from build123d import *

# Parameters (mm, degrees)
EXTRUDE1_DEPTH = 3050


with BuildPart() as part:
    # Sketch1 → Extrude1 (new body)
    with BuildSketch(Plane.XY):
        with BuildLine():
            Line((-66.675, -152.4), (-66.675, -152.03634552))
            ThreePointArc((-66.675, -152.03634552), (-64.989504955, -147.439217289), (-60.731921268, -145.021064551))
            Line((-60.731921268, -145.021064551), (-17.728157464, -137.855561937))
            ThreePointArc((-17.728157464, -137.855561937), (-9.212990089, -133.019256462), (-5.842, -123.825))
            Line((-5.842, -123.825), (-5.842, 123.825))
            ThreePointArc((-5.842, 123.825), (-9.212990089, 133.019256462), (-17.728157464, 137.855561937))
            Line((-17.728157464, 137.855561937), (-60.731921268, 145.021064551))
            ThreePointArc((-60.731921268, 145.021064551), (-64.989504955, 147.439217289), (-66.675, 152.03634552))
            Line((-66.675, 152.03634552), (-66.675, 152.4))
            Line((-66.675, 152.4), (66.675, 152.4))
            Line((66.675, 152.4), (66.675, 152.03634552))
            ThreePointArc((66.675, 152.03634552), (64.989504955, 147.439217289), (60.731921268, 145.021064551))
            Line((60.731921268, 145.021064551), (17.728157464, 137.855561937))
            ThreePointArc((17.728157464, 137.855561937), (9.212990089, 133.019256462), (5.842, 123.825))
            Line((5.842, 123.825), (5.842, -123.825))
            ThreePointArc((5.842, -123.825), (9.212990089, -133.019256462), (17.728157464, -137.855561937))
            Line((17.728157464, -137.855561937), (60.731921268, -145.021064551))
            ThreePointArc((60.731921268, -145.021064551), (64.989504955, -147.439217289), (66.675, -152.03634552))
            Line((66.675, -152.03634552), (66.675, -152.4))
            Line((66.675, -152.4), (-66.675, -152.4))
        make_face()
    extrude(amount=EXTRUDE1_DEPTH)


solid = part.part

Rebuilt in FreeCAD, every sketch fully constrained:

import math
import FreeCAD as App
import Part
import Sketcher
Q = App.Units.Quantity

doc = App.newDocument("Part")
body = doc.addObject("PartDesign::Body", "Body")

sketch1 = body.newObject("Sketcher::SketchObject", "Sketch")
sketch1.AttachmentSupport = (doc.getObject("XY_Plane"), [""])
sketch1.MapMode = "FlatFace"
sketch1.addGeometry([
    Part.LineSegment(App.Vector(-66.67, -152.04, 0), App.Vector(-66.67, -152.4, 0)),
    Part.LineSegment(App.Vector(-66.67, -152.4, 0), App.Vector(66.67, -152.4, 0)),
    Part.LineSegment(App.Vector(66.67, -152.4, 0), App.Vector(66.67, -152.04, 0)),
    Part.ArcOfCircle(Part.Circle(App.Vector(59.56, -152.04, 0), App.Vector(0, 0, 1), 7.11), math.radians(0), math.radians(81)),
    Part.LineSegment(App.Vector(60.73, -145.02, 0), App.Vector(17.73, -137.86, 0)),
    Part.ArcOfCircle(Part.Circle(App.Vector(20.07, -123.83, 0), App.Vector(0, 0, 1), 14.22), math.radians(180), math.radians(261)),
    Part.LineSegment(App.Vector(5.84, -123.83, 0), App.Vector(5.84, 123.83, 0)),
    Part.ArcOfCircle(Part.Circle(App.Vector(20.07, 123.83, 0), App.Vector(0, 0, 1), 14.22), math.radians(99), math.radians(180)),
    Part.LineSegment(App.Vector(17.73, 137.86, 0), App.Vector(60.73, 145.02, 0)),
    Part.ArcOfCircle(Part.Circle(App.Vector(59.56, 152.04, 0), App.Vector(0, 0, 1), 7.11), math.radians(-81), math.radians(0)),
    Part.LineSegment(App.Vector(66.67, 152.04, 0), App.Vector(66.67, 152.4, 0)),
    Part.LineSegment(App.Vector(66.67, 152.4, 0), App.Vector(-66.67, 152.4, 0)),
    Part.LineSegment(App.Vector(-66.67, 152.4, 0), App.Vector(-66.67, 152.04, 0)),
    Part.ArcOfCircle(Part.Circle(App.Vector(-59.56, 152.04, 0), App.Vector(0, 0, 1), 7.11), math.radians(180), math.radians(261)),
    Part.LineSegment(App.Vector(-60.73, 145.02, 0), App.Vector(-17.73, 137.86, 0)),
    Part.ArcOfCircle(Part.Circle(App.Vector(-20.07, 123.83, 0), App.Vector(0, 0, 1), 14.22), math.radians(0), math.radians(81)),
    Part.LineSegment(App.Vector(-5.84, 123.83, 0), App.Vector(-5.84, -123.83, 0)),
    Part.ArcOfCircle(Part.Circle(App.Vector(-20.07, -123.83, 0), App.Vector(0, 0, 1), 14.22), math.radians(-81), math.radians(0)),
    Part.LineSegment(App.Vector(-17.73, -137.86, 0), App.Vector(-60.73, -145.02, 0)),
    Part.ArcOfCircle(Part.Circle(App.Vector(-59.56, -152.04, 0), App.Vector(0, 0, 1), 7.11), math.radians(99), math.radians(180)),
], False)
sketch1.addConstraint([
    Sketcher.Constraint("Coincident", 0, 2, 1, 1),
    Sketcher.Constraint("Coincident", 1, 2, 2, 1),
    Sketcher.Constraint("Tangent", 2, 2, 3, 1),
    Sketcher.Constraint("Tangent", 3, 2, 4, 1),
    Sketcher.Constraint("Tangent", 4, 2, 5, 2),
    Sketcher.Constraint("Tangent", 5, 1, 6, 1),
    Sketcher.Constraint("Tangent", 6, 2, 7, 2),
    Sketcher.Constraint("Tangent", 7, 1, 8, 1),
    Sketcher.Constraint("Tangent", 8, 2, 9, 1),
    Sketcher.Constraint("Tangent", 9, 2, 10, 1),
    Sketcher.Constraint("Coincident", 10, 2, 11, 1),
    Sketcher.Constraint("Coincident", 11, 2, 12, 1),
    Sketcher.Constraint("Tangent", 12, 2, 13, 1),
    Sketcher.Constraint("Tangent", 13, 2, 14, 1),
    Sketcher.Constraint("Tangent", 14, 2, 15, 2),
    Sketcher.Constraint("Tangent", 15, 1, 16, 1),
    Sketcher.Constraint("Tangent", 16, 2, 17, 2),
    Sketcher.Constraint("Tangent", 17, 1, 18, 1),
    Sketcher.Constraint("Tangent", 18, 2, 19, 1),
    Sketcher.Constraint("Tangent", 19, 2, 0, 1),
    Sketcher.Constraint("Vertical", 0),
    Sketcher.Constraint("Horizontal", 1),
    Sketcher.Constraint("Vertical", 2),
    Sketcher.Constraint("Vertical", 6),
    Sketcher.Constraint("Vertical", 10),
    Sketcher.Constraint("Horizontal", 11),
    Sketcher.Constraint("Vertical", 12),
    Sketcher.Constraint("Vertical", 16),
    Sketcher.Constraint("Equal", 5, 7),
    Sketcher.Constraint("Equal", 3, 9),
    Sketcher.Constraint("Equal", 9, 13),
    Sketcher.Constraint("Equal", 7, 15),
    Sketcher.Constraint("Equal", 15, 17),
    Sketcher.Constraint("Equal", 13, 19),
    Sketcher.Constraint("Symmetric", 3, 3, 13, 3, -1, 1),
    Sketcher.Constraint("Symmetric", 5, 3, 15, 3, -1, 1),
    Sketcher.Constraint("Symmetric", 9, 3, 19, 3, -1, 1),
    Sketcher.Constraint("Symmetric", 9, 3, 13, 3, -2),
    Sketcher.Constraint("Parallel", 8, 18),
    Sketcher.Constraint("Horizontal", 7, 3, 15, 3),
    Sketcher.Constraint("Equal", 2, 10),
    Sketcher.Constraint("Radius", 3, Q("0.28 in")),
    Sketcher.Constraint("Radius", 5, Q("0.56 in")),
    Sketcher.Constraint("DistanceY", 0, 2, -1, 1, Q("6 in")),
    Sketcher.Constraint("DistanceX", 1, 1, 1, 2, Q("5.25 in")),
    Sketcher.Constraint("DistanceY", 6, 1, 6, 2, Q("9.75 in")),
    Sketcher.Constraint("DistanceX", -1, 1, 5, 3, Q("0.79 in")),
    Sketcher.Constraint("Angle", 4, Q("170.54 deg")),
])
pad1 = body.newObject("PartDesign::Pad", "Pad")
pad1.Profile = sketch1
pad1.Length = 3050

doc.recompute()
